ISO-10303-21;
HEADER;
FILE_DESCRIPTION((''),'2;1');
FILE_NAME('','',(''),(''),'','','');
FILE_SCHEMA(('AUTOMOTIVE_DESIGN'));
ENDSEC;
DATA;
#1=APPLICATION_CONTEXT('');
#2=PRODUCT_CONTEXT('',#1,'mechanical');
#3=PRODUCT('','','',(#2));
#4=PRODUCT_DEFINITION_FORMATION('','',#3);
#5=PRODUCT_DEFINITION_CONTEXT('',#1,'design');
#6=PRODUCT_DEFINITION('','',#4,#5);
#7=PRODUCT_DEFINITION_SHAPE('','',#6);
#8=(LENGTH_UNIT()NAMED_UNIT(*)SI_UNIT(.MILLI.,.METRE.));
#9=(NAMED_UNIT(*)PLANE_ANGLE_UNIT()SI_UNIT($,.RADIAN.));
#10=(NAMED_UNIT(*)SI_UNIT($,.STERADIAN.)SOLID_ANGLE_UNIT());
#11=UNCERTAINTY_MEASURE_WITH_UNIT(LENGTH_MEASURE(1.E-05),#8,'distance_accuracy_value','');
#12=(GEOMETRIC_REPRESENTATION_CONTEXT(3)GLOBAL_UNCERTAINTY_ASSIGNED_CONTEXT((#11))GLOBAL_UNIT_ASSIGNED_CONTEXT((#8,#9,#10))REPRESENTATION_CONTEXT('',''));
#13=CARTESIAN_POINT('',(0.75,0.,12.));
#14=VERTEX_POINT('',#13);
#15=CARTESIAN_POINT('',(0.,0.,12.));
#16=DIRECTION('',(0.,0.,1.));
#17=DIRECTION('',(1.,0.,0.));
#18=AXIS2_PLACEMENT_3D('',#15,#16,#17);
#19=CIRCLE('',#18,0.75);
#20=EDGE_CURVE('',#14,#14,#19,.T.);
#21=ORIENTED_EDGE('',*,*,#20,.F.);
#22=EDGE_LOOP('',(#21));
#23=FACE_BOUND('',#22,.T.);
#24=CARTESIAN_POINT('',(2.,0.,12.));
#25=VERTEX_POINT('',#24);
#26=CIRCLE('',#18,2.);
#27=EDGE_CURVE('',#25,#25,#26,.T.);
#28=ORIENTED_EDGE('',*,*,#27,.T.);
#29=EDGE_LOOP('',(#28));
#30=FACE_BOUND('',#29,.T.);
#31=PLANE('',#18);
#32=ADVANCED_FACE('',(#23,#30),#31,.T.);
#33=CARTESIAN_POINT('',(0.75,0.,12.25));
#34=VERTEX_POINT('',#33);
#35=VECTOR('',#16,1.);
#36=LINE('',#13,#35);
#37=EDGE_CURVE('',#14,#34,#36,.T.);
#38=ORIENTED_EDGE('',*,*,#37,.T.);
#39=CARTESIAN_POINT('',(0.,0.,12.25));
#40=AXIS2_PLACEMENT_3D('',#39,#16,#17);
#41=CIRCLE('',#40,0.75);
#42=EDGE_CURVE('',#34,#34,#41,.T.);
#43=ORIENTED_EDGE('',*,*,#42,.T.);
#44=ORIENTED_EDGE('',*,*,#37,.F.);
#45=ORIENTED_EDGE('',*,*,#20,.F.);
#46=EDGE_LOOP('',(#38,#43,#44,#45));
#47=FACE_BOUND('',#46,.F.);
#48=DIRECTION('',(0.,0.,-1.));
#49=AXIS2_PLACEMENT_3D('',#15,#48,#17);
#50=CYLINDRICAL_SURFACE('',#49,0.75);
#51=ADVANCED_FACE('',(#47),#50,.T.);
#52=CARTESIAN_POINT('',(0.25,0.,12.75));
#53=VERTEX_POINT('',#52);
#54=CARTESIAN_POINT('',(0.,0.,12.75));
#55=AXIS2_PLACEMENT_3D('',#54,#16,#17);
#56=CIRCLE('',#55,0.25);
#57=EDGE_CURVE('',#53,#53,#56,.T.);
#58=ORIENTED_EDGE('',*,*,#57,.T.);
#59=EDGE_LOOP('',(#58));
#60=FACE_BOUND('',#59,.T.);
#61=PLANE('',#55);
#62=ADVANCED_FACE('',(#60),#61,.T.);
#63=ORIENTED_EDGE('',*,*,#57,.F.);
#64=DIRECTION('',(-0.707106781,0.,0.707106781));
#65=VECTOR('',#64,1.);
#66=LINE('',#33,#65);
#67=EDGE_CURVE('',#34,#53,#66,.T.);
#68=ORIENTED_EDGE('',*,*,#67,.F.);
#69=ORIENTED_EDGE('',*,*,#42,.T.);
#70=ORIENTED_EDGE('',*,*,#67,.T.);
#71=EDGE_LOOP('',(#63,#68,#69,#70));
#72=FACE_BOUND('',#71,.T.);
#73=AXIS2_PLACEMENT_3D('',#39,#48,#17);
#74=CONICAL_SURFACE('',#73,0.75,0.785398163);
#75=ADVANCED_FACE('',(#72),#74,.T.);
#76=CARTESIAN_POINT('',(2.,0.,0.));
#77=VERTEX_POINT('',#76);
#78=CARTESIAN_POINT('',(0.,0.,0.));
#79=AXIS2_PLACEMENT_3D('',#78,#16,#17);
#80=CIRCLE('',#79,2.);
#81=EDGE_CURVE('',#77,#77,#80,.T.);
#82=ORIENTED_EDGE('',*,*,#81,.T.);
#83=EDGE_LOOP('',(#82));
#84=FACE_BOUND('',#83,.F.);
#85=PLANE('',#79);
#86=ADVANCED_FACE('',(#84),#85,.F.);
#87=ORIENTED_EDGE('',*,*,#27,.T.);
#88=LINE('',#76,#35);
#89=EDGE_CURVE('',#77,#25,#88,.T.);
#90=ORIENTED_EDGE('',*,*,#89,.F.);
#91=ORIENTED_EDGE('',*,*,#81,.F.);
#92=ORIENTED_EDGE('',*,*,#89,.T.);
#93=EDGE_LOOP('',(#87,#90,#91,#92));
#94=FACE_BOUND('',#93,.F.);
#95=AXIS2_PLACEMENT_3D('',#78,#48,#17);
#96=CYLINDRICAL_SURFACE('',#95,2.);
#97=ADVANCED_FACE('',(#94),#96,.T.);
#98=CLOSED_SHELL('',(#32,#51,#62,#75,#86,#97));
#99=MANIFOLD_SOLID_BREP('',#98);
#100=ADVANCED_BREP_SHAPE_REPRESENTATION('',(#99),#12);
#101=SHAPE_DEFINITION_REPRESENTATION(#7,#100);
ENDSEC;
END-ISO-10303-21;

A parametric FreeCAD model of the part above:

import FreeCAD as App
import Part
import Sketcher


def edges_at(feature, points):
    """Names of the edges that pass closest to the given points."""
    edges = feature.Shape.Edges
    near = lambda p: min(range(len(edges)), key=lambda i: edges[i].distToShape(Part.Vertex(*p))[0])
    return sorted({f"Edge{near(p) + 1}" for p in points})

doc = App.newDocument("Part")
body = doc.addObject("PartDesign::Body", "Body")

sketch1 = doc.addObject("Sketcher::SketchObject", "Sketch")
body.addObject(sketch1)
sketch1.AttachmentSupport = (doc.XY_Plane, [""])
sketch1.MapMode = "FlatFace"
sketch1.addGeometry(Part.Circle(App.Vector(0, 0, 0), App.Vector(0, 0, 1), 2), False)
sketch1.addConstraint([
    Sketcher.Constraint("Coincident", 0, 3, -1, 1),
    Sketcher.Constraint("Diameter", 0, 4.0),
])
pad1 = doc.addObject("PartDesign::Pad", "Pad")
body.addObject(pad1)
pad1.Profile = sketch1
pad1.Length = 12

sketch2 = doc.addObject("Sketcher::SketchObject", "Sketch001")
body.addObject(sketch2)
sketch2.AttachmentSupport = (doc.XY_Plane, [""])
sketch2.MapMode = "FlatFace"
sketch2.AttachmentOffset = App.Placement(App.Vector(0, 0, 12), App.Rotation())
sketch2.addGeometry(Part.Circle(App.Vector(0, 0, 0), App.Vector(0, 0, 1), 0.8), False)
sketch2.addConstraint([
    Sketcher.Constraint("Coincident", 0, 3, -1, 1),
    Sketcher.Constraint("Diameter", 0, 1.5),
])
pad2 = doc.addObject("PartDesign::Pad", "Pad001")
body.addObject(pad2)
pad2.Profile = sketch2
pad2.Length = 0.75
doc.recompute()

chamfer = doc.addObject("PartDesign::Chamfer", "Chamfer")
body.addObject(chamfer)
chamfer.Base = (pad2, edges_at(pad2, [(-0.75, 0, 12.75)]))
chamfer.Size = 0.5

doc.recompute()
